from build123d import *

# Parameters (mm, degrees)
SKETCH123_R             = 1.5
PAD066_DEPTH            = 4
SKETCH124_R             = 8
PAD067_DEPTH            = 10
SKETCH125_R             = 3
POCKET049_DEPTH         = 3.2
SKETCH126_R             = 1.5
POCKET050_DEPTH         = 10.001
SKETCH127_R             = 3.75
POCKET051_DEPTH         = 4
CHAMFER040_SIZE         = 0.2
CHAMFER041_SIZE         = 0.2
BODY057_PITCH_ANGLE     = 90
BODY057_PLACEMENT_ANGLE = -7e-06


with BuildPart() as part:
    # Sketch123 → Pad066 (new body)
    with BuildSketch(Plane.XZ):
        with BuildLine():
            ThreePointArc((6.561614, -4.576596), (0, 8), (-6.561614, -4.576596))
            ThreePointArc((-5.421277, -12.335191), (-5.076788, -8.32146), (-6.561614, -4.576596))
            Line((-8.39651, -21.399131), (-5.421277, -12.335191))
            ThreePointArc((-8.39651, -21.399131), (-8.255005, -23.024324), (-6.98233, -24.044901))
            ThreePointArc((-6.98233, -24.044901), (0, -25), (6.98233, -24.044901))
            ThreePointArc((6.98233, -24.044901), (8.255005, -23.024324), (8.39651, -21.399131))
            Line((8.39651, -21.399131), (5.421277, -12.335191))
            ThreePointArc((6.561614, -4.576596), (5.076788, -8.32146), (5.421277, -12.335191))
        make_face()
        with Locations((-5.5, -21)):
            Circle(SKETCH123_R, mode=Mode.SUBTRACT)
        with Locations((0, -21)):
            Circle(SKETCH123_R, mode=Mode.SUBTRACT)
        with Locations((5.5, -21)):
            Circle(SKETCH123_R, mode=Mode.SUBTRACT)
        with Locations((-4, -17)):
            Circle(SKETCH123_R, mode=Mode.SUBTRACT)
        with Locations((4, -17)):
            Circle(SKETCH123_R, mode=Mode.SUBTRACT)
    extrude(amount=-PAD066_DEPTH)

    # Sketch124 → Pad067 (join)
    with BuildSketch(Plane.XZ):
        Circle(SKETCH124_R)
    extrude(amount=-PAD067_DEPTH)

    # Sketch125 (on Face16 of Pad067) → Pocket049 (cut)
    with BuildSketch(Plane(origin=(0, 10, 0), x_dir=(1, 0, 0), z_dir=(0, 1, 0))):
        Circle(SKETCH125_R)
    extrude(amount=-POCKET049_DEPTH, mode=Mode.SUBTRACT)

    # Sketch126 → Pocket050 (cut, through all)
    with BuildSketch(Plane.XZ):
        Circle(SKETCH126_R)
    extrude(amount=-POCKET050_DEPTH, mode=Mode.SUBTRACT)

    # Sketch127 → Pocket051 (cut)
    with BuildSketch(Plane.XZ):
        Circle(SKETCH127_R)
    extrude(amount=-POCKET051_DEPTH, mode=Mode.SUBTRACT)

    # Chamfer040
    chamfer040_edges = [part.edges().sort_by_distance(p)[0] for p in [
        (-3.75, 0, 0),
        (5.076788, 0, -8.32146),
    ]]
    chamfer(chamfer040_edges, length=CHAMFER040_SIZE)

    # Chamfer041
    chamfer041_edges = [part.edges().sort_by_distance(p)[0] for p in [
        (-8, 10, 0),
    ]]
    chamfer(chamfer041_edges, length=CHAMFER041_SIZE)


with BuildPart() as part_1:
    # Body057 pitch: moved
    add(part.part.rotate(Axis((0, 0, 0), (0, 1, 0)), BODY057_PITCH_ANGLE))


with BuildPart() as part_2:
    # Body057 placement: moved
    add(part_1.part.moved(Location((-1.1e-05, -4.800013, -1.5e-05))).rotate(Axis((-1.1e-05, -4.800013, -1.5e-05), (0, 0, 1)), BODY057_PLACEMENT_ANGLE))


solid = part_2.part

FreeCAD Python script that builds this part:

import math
import FreeCAD as App
import Part
import Sketcher

V = App.Vector


def edges_at(feature, points):
    """Names of the edges that pass closest to the given points."""
    edges = feature.Shape.Edges
    near = lambda p: min(range(len(edges)), key=lambda i: edges[i].distToShape(Part.Vertex(*p))[0])
    return sorted({f"Edge{near(p) + 1}" for p in points})

doc = App.newDocument("Part")
body = doc.addObject("PartDesign::Body", "Body")

sketch1 = doc.addObject("Sketcher::SketchObject", "Sketch")
body.addObject(sketch1)
sketch1.AttachmentSupport = (doc.XZ_Plane, [""])
sketch1.MapMode = "FlatFace"
sketch1.addGeometry(Part.ArcOfCircle(Part.Circle(V(0, 0, 0), V(0, 0, 1), 8), math.radians(-34.895009), math.radians(214.895009)), False)
sketch1.addGeometry(Part.ArcOfCircle(Part.Circle(V(-13.760666, -9.597792, 0), V(0, 0, 1), 8.777173), math.radians(-18.172387), math.radians(34.89501)), False)
sketch1.addGeometry(Part.LineSegment(V(-5.421277, -12.335191, 0), V(-8.39651, -21.399131, 0)), False)
sketch1.addGeometry(Part.ArcOfCircle(Part.Circle(V(-6.425119, -22.04624, 0), V(0, 0, 1), 2.074881), math.radians(161.827591), math.radians(254.421953)), False)
sketch1.addGeometry(Part.ArcOfCircle(Part.Circle(V(0, 0.999999, 0), V(0, 0, 1), 25.999999), math.radians(-105.578071), math.radians(-74.421929)), False)
sketch1.addGeometry(Part.ArcOfCircle(Part.Circle(V(6.425119, -22.04624, 0), V(0, 0, 1), 2.074881), math.radians(-74.421953), math.radians(18.172409)), False)
sketch1.addGeometry(Part.LineSegment(V(8.39651, -21.399131, 0), V(5.421277, -12.335191, 0)), False)
sketch1.addGeometry(Part.ArcOfCircle(Part.Circle(V(13.760666, -9.597792, 0), V(0, 0, 1), 8.777173), math.radians(145.10499), math.radians(198.172387)), False)
sketch1.addGeometry(Part.Circle(V(-5.5, -21, 0), V(0, 0, 1), 1.5), False)
sketch1.addGeometry(Part.Circle(V(0, -21, 0), V(0, 0, 1), 1.5), False)
sketch1.addGeometry(Part.Circle(V(5.5, -21, 0), V(0, 0, 1), 1.5), False)
sketch1.addGeometry(Part.Circle(V(-4, -17, 0), V(0, 0, 1), 1.5), False)
sketch1.addGeometry(Part.Circle(V(4, -17, 0), V(0, 0, 1), 1.5), False)
sketch1.addConstraint(Sketcher.Constraint("Tangent", 0, 2, 1, 2))
sketch1.addConstraint(Sketcher.Constraint("Tangent", 1, 1, 2, 1))
sketch1.addConstraint(Sketcher.Constraint("Tangent", 2, 2, 3, 1))
sketch1.addConstraint(Sketcher.Constraint("Tangent", 3, 2, 4, 1))
sketch1.addConstraint(Sketcher.Constraint("Tangent", 4, 2, 5, 1))
sketch1.addConstraint(Sketcher.Constraint("Tangent", 5, 2, 6, 1))
sketch1.addConstraint(Sketcher.Constraint("Tangent", 6, 2, 7, 2))
sketch1.addConstraint(Sketcher.Constraint("Tangent", 7, 1, 0, 1))
sketch1.addConstraint(Sketcher.Constraint("Coincident", 0, 3, -1, 1))
sketch1.addConstraint(Sketcher.Constraint("Equal", 3, 5))
sketch1.addConstraint(Sketcher.Constraint("Equal", 1, 7))
sketch1.addConstraint(Sketcher.Constraint("Equal", 8, 9))
sketch1.addConstraint(Sketcher.Constraint("Equal", 9, 10))
sketch1.addConstraint(Sketcher.Constraint("Equal", 10, 11))
sketch1.addConstraint(Sketcher.Constraint("Equal", 11, 12))
sketch1.addConstraint(Sketcher.Constraint("Symmetric", 3, 3, 5, 3, -2))
sketch1.addConstraint(Sketcher.Constraint("Symmetric", 8, 3, 10, 3, -2))
sketch1.addConstraint(Sketcher.Constraint("Symmetric", 11, 3, 12, 3, -2))
sketch1.addConstraint(Sketcher.Constraint("PointOnObject", 9, 3, -2))
sketch1.addConstraint(Sketcher.Constraint("Horizontal", 1, 3, 7, 3))
sketch1.addConstraint(Sketcher.Constraint("Horizontal", 8, 3, 9, 3))
sketch1.addConstraint(Sketcher.Constraint("Diameter", 8, 3.0))
sketch1.addConstraint(Sketcher.Constraint("Radius", 0, 8.0))
sketch1.addConstraint(Sketcher.Constraint("Radius", 4, 25.999999))
sketch1.addConstraint(Sketcher.Constraint("DistanceY", -1, 1, 4, 3, 0.999999))
sketch1.addConstraint(Sketcher.Constraint("DistanceY", 8, 3, -1, 1, 21.0))
sketch1.addConstraint(Sketcher.Constraint("DistanceX", 11, 3, -1, 1, 4.0))
sketch1.addConstraint(Sketcher.Constraint("DistanceY", 11, 3, -1, 1, 17.0))
sketch1.addConstraint(Sketcher.Constraint("DistanceX", 8, 3, 10, 3, 11.0))
sketch1.addConstraint(Sketcher.Constraint("Radius", 3, 2.074881))
sketch1.addConstraint(Sketcher.Constraint("Radius", 1, 8.777173))
sketch1.addConstraint(Sketcher.Constraint("DistanceY", 3, 2, -1, 1, 24.044901))
sketch1.addConstraint(Sketcher.Constraint("DistanceY", 1, 1, 1, 3, 2.737399))
pad1 = doc.addObject("PartDesign::Pad", "Pad")
body.addObject(pad1)
pad1.Profile = sketch1
pad1.Length = 4
pad1.Reversed = True

sketch2 = doc.addObject("Sketcher::SketchObject", "Sketch001")
body.addObject(sketch2)
sketch2.AttachmentSupport = (doc.XZ_Plane, [""])
sketch2.MapMode = "FlatFace"
sketch2.addGeometry(Part.Circle(V(0, 0, 0), V(0, 0, 1), 8), False)
sketch2.addConstraint(Sketcher.Constraint("Coincident", 0, 3, -1, 1))
sketch2.addConstraint(Sketcher.Constraint("Diameter", 0, 16.0))
pad2 = doc.addObject("PartDesign::Pad", "Pad001")
body.addObject(pad2)
pad2.Profile = sketch2
pad2.Length = 10
pad2.Reversed = True

sketch3 = doc.addObject("Sketcher::SketchObject", "Sketch002")
body.addObject(sketch3)
sketch3.AttachmentSupport = (doc.XZ_Plane, [""])
sketch3.MapMode = "FlatFace"
sketch3.AttachmentOffset = App.Placement(V(0, 0, -10), App.Rotation())
sketch3.addGeometry(Part.Circle(V(0, 0, 0), V(0, 0, 1), 3), False)
sketch3.addConstraint(Sketcher.Constraint("Coincident", 0, 3, -1, 1))
sketch3.addConstraint(Sketcher.Constraint("Diameter", 0, 6.0))
pocket1 = doc.addObject("PartDesign::Pocket", "Pocket")
body.addObject(pocket1)
pocket1.Profile = sketch3
pocket1.Length = 3.2
pocket1.Reversed = True

sketch4 = doc.addObject("Sketcher::SketchObject", "Sketch003")
body.addObject(sketch4)
sketch4.AttachmentSupport = (doc.XZ_Plane, [""])
sketch4.MapMode = "FlatFace"
sketch4.addGeometry(Part.Circle(V(0, 0, 0), V(0, 0, 1), 1.5), False)
sketch4.addConstraint(Sketcher.Constraint("Coincident", 0, 3, -1, 1))
sketch4.addConstraint(Sketcher.Constraint("Diameter", 0, 3.0))
pocket2 = doc.addObject("PartDesign::Pocket", "Pocket001")
body.addObject(pocket2)
pocket2.Profile = sketch4
pocket2.Type = "ThroughAll"

sketch5 = doc.addObject("Sketcher::SketchObject", "Sketch004")
body.addObject(sketch5)
sketch5.AttachmentSupport = (doc.XZ_Plane, [""])
sketch5.MapMode = "FlatFace"
sketch5.addGeometry(Part.Circle(V(0, 0, 0), V(0, 0, 1), 3.75), False)
sketch5.addConstraint(Sketcher.Constraint("Coincident", 0, 3, -1, 1))
sketch5.addConstraint(Sketcher.Constraint("Diameter", 0, 7.5))
pocket3 = doc.addObject("PartDesign::Pocket", "Pocket002")
body.addObject(pocket3)
pocket3.Profile = sketch5
pocket3.Length = 4
doc.recompute()

chamfer = doc.addObject("PartDesign::Chamfer", "Chamfer")
body.addObject(chamfer)
chamfer.Base = (pocket3, edges_at(pocket3, [(-3.75, 0, 0), (5.077, 0, -8.321)]))
chamfer.Size = 0.2
doc.recompute()

chamfer2 = doc.addObject("PartDesign::Chamfer", "Chamfer001")
body.addObject(chamfer2)
chamfer2.Base = (chamfer, edges_at(chamfer, [(-8, 10, 0)]))
chamfer2.Size = 0.2
body2 = doc.addObject("PartDesign::Body", "Body001")
doc.recompute()

body.Placement = App.Placement(V(0, 0, 0), App.Rotation(V(0, 1, 0), 90))
boolean = doc.addObject("PartDesign::Boolean", "Boolean")
body2.addObject(boolean)
boolean.Type = "Fuse"
boolean.addObjects([body])
body3 = doc.addObject("PartDesign::Body", "Body002")
doc.recompute()

body2.Placement = App.Placement(V(-0.000011, -4.800013, -0.000015), App.Rotation(V(0, 0, 1), 359.999993))
boolean2 = doc.addObject("PartDesign::Boolean", "Boolean001")
body3.addObject(boolean2)
boolean2.Type = "Fuse"
boolean2.addObjects([body2])

doc.recompute()
